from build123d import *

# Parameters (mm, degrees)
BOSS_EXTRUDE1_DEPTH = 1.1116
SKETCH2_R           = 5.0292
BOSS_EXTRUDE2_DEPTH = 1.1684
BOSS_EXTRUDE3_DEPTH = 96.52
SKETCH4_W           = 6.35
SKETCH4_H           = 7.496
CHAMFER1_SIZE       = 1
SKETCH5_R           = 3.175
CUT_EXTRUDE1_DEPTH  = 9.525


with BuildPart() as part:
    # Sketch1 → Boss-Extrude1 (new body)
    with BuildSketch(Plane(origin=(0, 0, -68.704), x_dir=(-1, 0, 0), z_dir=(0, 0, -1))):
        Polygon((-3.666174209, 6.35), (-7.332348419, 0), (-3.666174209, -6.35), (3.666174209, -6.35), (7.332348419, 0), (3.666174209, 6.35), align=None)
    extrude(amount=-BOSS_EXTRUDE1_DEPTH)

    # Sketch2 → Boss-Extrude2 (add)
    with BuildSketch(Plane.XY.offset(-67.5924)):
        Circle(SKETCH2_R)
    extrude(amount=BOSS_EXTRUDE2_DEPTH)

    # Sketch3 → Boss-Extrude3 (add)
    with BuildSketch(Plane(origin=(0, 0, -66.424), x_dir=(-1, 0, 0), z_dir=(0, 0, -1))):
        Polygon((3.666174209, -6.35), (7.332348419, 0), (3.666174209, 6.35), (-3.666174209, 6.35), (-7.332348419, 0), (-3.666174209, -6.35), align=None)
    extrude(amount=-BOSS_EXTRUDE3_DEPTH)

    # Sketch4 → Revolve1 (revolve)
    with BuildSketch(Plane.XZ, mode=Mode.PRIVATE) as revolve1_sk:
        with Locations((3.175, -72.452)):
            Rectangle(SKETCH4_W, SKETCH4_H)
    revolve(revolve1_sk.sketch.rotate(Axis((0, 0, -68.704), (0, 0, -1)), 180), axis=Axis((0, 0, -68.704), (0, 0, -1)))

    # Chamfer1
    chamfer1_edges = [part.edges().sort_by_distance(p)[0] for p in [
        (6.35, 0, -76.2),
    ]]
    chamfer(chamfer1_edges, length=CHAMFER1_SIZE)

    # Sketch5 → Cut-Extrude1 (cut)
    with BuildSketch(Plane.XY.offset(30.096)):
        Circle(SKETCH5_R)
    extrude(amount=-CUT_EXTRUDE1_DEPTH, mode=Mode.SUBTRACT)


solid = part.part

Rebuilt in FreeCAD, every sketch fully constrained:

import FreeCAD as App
import Part
import Sketcher

V = App.Vector
Q = App.Units.Quantity


def edges_at(feature, points):
    """Names of the edges that pass closest to the given points."""
    edges = feature.Shape.Edges
    near = lambda p: min(range(len(edges)), key=lambda i: edges[i].distToShape(Part.Vertex(*p))[0])
    return sorted({f"Edge{near(p) + 1}" for p in points})

doc = App.newDocument("Part")
body = doc.addObject("PartDesign::Body", "Body")

# Sketch on XY plane
sketch1 = body.newObject("Sketcher::SketchObject", "Sketch")
sketch1.AttachmentSupport = (doc.getObject("XY_Plane"), [""])
sketch1.MapMode = "FlatFace"
sketch1.AttachmentOffset = App.Placement(V(0, 0, -68.704), App.Rotation())
sketch1.addGeometry([
    Part.LineSegment(V(4, 6, 0), V(7, 0, 0)),  # 0
    Part.LineSegment(V(7, 0, 0), V(4, -6, 0)),  # 1
    Part.LineSegment(V(4, -6, 0), V(-4, -6, 0)),  # 2
    Part.LineSegment(V(-4, -6, 0), V(-7, 0, 0)),  # 3
    Part.LineSegment(V(-7, 0, 0), V(-4, 6, 0)),  # 4
    Part.LineSegment(V(-4, 6, 0), V(4, 6, 0)),  # 5
], False)
sketch1.addConstraint([
    Sketcher.Constraint("Coincident", 0, 2, 1, 1),
    Sketcher.Constraint("Coincident", 1, 2, 2, 1),
    Sketcher.Constraint("Coincident", 2, 2, 3, 1),
    Sketcher.Constraint("Coincident", 3, 2, 4, 1),
    Sketcher.Constraint("Coincident", 4, 2, 5, 1),
    Sketcher.Constraint("Coincident", 5, 2, 0, 1),
    Sketcher.Constraint("Horizontal", 2),
    Sketcher.Constraint("Horizontal", 5),
    Sketcher.Constraint("Symmetric", 0, 2, 3, 2, -1, 1),
    Sketcher.Constraint("Symmetric", 1, 2, 4, 2, -1, 1),
    Sketcher.Constraint("PointOnObject", 0, 2, -1),
    Sketcher.Constraint("Parallel", 0, 3),
    Sketcher.Constraint("Vertical", 2, 2, 4, 2),
    Sketcher.Constraint("Angle", 0, Q("-60 deg")),
    Sketcher.Constraint("DistanceY", 2, 2, 4, 2, Q("0.5 in")),
    Sketcher.Constraint("DistanceX", 2, 2, 2, 1, 7.332348),
])
pad1 = body.newObject("PartDesign::Pad", "Pad")
pad1.Profile = sketch1
pad1.Length = 1.1116

# Sketch on XY plane
sketch2 = body.newObject("Sketcher::SketchObject", "Sketch001")
sketch2.AttachmentSupport = (doc.getObject("XY_Plane"), [""])
sketch2.MapMode = "FlatFace"
sketch2.AttachmentOffset = App.Placement(V(0, 0, -67.5924), App.Rotation())
sketch2.addGeometry(Part.Circle(V(0, 0, 0), V(0, 0, 1), 5), False)
sketch2.addConstraint([
    Sketcher.Constraint("Coincident", 0, 3, -1, 1),
    Sketcher.Constraint("Diameter", 0, Q("0.396 in")),
])
pad2 = body.newObject("PartDesign::Pad", "Pad001")
pad2.Profile = sketch2
pad2.Length = Q("0.046 in")

# Sketch on XY plane
sketch3 = body.newObject("Sketcher::SketchObject", "Sketch002")
sketch3.AttachmentSupport = (doc.getObject("XY_Plane"), [""])
sketch3.MapMode = "FlatFace"
sketch3.AttachmentOffset = App.Placement(V(0, 0, -66.424), App.Rotation())
sketch3.addGeometry([
    Part.LineSegment(V(-4, -6, 0), V(-7, 0, 0)),  # 0
    Part.LineSegment(V(-7, 0, 0), V(-4, 6, 0)),  # 1
    Part.LineSegment(V(-4, 6, 0), V(4, 6, 0)),  # 2
    Part.LineSegment(V(4, 6, 0), V(7, 0, 0)),  # 3
    Part.LineSegment(V(7, 0, 0), V(4, -6, 0)),  # 4
    Part.LineSegment(V(4, -6, 0), V(-4, -6, 0)),  # 5
], False)
sketch3.addConstraint([
    Sketcher.Constraint("Coincident", 0, 2, 1, 1),
    Sketcher.Constraint("Coincident", 1, 2, 2, 1),
    Sketcher.Constraint("Coincident", 2, 2, 3, 1),
    Sketcher.Constraint("Coincident", 3, 2, 4, 1),
    Sketcher.Constraint("Coincident", 4, 2, 5, 1),
    Sketcher.Constraint("Coincident", 5, 2, 0, 1),
    Sketcher.Constraint("Horizontal", 2),
    Sketcher.Constraint("Horizontal", 5),
    Sketcher.Constraint("Symmetric", 0, 2, 3, 2, -1, 1),
    Sketcher.Constraint("Symmetric", 1, 2, 4, 2, -1, 1),
    Sketcher.Constraint("PointOnObject", 0, 2, -1),
    Sketcher.Constraint("Parallel", 0, 3),
    Sketcher.Constraint("Vertical", 2, 2, 4, 2),
    Sketcher.Constraint("Angle", 0, Q("120 deg")),
    Sketcher.Constraint("DistanceY", 4, 2, 2, 2, Q("0.5 in")),
    Sketcher.Constraint("DistanceX", 2, 1, 2, 2, 7.332348),
])
pad3 = body.newObject("PartDesign::Pad", "Pad002")
pad3.Profile = sketch3
pad3.Length = Q("3.8 in")

# Sketch on XZ plane
sketch4 = body.newObject("Sketcher::SketchObject", "Sketch003")
sketch4.AttachmentSupport = (doc.getObject("XZ_Plane"), [""])
sketch4.MapMode = "FlatFace"
sketch4.addGeometry([
    Part.LineSegment(V(0, -69, 0), V(0, -76, 0)),
    Part.LineSegment(V(0, -76, 0), V(6, -76, 0)),
    Part.LineSegment(V(6, -76, 0), V(6, -69, 0)),
    Part.LineSegment(V(6, -69, 0), V(0, -69, 0)),
], False)
sketch4.addConstraint([
    Sketcher.Constraint("Coincident", 0, 2, 1, 1),
    Sketcher.Constraint("Coincident", 1, 2, 2, 1),
    Sketcher.Constraint("Coincident", 2, 2, 3, 1),
    Sketcher.Constraint("Coincident", 3, 2, 0, 1),
    Sketcher.Constraint("Vertical", 0),
    Sketcher.Constraint("Horizontal", 1),
    Sketcher.Constraint("Vertical", 2),
    Sketcher.Constraint("Horizontal", 3),
    Sketcher.Constraint("PointOnObject", 0, 2, -2),
    Sketcher.Constraint("DistanceY", 0, 2, -1, 1, Q("3 in")),
    Sketcher.Constraint("DistanceX", 1, 1, 1, 2, Q("0.25 in")),
    Sketcher.Constraint("DistanceY", 0, 2, 0, 1, 7.496),
])
revolution = body.newObject("PartDesign::Revolution", "Revolution")
revolution.Profile = sketch4
revolution.ReferenceAxis = (sketch4, ["V_Axis"])
revolution.Angle = 360
doc.recompute()

chamfer = body.newObject("PartDesign::Chamfer", "Chamfer")
chamfer.Base = (revolution, edges_at(revolution, [(6.35, 0, -76.2)]))
chamfer.Size = 1

# Sketch on XY plane
sketch5 = body.newObject("Sketcher::SketchObject", "Sketch004")
sketch5.AttachmentSupport = (doc.getObject("XY_Plane"), [""])
sketch5.MapMode = "FlatFace"
sketch5.AttachmentOffset = App.Placement(V(0, 0, 30.096), App.Rotation())
sketch5.addGeometry(Part.Circle(V(0, 0, 0), V(0, 0, 1), 3.2), False)
sketch5.addConstraint([
    Sketcher.Constraint("Coincident", 0, 3, -1, 1),
    Sketcher.Constraint("Diameter", 0, Q("0.25 in")),
])
pocket1 = body.newObject("PartDesign::Pocket", "Pocket")
pocket1.Profile = sketch5
pocket1.Length = Q("0.375 in")

doc.recompute()
